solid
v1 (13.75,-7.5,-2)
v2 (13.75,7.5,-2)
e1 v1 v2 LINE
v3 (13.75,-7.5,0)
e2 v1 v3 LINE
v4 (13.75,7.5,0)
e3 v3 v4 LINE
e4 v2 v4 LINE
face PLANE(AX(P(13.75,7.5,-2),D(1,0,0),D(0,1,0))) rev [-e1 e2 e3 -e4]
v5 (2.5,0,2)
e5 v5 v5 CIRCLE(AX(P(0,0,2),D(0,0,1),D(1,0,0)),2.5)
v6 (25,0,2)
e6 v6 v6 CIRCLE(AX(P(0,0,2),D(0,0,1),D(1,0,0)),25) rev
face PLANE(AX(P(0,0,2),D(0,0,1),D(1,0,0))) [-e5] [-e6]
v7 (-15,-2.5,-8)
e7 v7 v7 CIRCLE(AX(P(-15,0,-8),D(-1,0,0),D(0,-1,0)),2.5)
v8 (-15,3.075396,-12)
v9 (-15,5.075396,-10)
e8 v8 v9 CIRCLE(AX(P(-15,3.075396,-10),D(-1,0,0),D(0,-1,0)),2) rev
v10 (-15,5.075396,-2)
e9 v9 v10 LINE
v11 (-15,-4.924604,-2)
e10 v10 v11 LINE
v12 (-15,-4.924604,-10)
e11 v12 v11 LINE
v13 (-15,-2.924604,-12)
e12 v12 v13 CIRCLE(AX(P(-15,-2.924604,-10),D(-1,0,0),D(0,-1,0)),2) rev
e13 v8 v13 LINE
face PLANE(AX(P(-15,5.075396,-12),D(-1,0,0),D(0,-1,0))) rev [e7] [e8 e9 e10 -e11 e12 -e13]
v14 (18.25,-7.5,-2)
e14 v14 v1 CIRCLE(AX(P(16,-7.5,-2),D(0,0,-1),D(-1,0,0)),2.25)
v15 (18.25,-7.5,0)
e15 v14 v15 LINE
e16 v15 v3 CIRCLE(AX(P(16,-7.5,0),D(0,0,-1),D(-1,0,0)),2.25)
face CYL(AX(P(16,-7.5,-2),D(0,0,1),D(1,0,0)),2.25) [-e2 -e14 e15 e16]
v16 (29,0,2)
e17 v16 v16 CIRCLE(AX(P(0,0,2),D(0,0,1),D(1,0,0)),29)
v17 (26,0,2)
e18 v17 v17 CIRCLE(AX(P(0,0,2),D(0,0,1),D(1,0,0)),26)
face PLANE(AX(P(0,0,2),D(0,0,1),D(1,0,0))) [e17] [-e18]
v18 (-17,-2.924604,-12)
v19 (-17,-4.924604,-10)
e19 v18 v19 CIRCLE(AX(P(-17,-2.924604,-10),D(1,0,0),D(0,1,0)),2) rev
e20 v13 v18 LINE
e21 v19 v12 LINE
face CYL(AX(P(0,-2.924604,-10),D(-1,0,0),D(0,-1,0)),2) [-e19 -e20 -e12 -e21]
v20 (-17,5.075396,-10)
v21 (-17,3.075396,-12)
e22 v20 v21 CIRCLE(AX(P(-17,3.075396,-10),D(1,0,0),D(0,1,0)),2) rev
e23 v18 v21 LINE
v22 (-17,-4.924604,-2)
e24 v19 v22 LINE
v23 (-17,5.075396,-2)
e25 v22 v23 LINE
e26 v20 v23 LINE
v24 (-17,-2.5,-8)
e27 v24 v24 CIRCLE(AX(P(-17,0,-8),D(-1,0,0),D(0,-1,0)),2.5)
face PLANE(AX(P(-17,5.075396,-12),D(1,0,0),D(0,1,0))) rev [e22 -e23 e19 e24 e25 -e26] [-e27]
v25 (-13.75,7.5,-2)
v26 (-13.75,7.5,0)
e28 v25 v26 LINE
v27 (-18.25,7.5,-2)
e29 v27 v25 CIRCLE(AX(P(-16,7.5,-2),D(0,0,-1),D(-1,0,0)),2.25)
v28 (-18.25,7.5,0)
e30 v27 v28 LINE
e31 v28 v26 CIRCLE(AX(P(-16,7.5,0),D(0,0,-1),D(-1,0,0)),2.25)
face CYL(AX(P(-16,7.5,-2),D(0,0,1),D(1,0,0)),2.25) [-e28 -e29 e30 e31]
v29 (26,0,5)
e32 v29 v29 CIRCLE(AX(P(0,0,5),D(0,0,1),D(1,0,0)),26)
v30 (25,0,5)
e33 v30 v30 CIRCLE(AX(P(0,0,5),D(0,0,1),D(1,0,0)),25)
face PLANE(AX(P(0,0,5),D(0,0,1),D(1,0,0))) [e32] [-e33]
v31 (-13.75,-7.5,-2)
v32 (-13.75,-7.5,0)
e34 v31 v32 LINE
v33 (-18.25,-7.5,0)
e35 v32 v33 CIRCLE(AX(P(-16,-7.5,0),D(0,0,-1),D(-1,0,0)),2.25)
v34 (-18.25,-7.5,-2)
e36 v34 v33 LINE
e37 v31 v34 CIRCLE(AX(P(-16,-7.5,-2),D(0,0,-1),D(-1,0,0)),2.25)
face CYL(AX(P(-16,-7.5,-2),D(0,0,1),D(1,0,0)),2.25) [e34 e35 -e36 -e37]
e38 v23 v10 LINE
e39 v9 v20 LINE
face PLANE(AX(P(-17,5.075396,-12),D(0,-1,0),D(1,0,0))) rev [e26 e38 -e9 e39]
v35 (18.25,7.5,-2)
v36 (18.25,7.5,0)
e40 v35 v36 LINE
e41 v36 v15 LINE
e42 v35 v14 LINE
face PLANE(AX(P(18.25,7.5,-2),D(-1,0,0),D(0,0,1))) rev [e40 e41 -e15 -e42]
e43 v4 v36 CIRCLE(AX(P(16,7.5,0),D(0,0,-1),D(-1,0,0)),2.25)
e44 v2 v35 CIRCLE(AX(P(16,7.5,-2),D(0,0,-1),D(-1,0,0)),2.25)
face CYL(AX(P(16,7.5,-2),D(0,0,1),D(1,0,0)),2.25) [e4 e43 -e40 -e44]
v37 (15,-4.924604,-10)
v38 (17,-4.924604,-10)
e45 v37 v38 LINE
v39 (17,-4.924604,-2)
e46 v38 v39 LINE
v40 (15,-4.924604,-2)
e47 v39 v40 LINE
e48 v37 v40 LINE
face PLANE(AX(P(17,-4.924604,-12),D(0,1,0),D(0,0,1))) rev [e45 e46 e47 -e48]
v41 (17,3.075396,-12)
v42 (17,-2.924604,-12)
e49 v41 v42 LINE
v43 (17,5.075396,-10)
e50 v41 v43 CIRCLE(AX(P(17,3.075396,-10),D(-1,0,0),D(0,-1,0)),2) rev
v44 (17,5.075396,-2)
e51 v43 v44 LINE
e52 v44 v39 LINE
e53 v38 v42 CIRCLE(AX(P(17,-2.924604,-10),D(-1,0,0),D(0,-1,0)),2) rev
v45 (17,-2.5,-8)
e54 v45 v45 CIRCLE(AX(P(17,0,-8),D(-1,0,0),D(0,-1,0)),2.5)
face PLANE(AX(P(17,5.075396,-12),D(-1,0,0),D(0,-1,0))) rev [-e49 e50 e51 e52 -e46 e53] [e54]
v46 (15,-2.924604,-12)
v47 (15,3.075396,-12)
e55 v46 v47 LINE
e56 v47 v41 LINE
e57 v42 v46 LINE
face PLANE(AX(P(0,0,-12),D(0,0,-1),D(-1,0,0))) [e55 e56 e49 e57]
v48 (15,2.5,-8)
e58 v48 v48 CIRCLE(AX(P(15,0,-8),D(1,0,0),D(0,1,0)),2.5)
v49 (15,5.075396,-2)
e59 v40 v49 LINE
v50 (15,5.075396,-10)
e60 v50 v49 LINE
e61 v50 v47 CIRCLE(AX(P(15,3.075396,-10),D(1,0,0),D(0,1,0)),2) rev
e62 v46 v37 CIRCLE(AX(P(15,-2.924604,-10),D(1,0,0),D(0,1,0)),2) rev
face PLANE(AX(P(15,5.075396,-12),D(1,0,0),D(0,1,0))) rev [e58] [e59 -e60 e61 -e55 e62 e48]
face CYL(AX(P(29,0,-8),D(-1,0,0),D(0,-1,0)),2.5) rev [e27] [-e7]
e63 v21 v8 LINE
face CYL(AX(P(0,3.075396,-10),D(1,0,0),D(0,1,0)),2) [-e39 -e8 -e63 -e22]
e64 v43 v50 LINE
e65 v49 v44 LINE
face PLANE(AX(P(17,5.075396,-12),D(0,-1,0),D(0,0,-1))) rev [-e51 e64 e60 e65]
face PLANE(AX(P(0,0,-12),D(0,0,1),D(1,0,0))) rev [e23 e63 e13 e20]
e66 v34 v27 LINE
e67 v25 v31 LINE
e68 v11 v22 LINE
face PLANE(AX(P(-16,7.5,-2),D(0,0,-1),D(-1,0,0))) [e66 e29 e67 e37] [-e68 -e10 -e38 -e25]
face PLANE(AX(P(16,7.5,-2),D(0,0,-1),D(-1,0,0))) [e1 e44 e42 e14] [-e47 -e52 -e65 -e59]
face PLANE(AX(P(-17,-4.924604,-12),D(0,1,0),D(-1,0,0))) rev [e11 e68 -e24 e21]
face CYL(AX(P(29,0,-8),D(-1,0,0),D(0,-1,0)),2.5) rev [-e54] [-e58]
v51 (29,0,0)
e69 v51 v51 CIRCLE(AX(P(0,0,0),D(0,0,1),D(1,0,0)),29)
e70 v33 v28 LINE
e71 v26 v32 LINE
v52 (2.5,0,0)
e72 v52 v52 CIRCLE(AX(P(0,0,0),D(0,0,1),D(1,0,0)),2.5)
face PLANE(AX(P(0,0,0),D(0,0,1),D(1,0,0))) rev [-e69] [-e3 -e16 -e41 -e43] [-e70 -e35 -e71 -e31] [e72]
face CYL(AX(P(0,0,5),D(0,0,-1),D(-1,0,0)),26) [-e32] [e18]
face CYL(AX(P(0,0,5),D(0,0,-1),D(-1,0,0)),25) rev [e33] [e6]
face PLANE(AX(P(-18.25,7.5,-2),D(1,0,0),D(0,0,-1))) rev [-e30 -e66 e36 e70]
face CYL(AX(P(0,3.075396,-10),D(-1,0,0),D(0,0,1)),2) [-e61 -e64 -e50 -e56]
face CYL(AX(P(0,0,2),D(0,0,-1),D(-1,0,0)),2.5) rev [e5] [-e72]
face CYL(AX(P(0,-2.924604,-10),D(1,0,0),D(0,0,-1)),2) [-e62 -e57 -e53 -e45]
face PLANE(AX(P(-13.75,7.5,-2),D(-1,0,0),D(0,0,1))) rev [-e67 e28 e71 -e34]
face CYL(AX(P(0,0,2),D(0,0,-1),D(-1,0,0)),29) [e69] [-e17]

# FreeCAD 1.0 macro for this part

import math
import FreeCAD as App
import Part
import Sketcher

V = App.Vector


def edges_at(feature, points):
    """Names of the edges that pass closest to the given points."""
    edges = feature.Shape.Edges
    near = lambda p: min(range(len(edges)), key=lambda i: edges[i].distToShape(Part.Vertex(*p))[0])
    return sorted({f"Edge{near(p) + 1}" for p in points})


def add_polygon(sketch, points):
    """Adds a closed chain of lines whose ends are joined by coincident constraints."""
    first, n = sketch.GeometryCount, len(points)
    for a, b in zip(points, points[1:] + points[:1]):
        sketch.addGeometry(Part.LineSegment(App.Vector(*a, 0), App.Vector(*b, 0)), False)
    for i in range(n):
        sketch.addConstraint(Sketcher.Constraint("Coincident", first + i, 2, first + (i + 1) % n, 1))

doc = App.newDocument("Part")
body = doc.addObject("PartDesign::Body", "Body")

# Sketch on XY plane
sketch1 = body.newObject("Sketcher::SketchObject", "Sketch")
sketch1.AttachmentSupport = (doc.getObject("XY_Plane"), [""])
sketch1.MapMode = "FlatFace"
sketch1.addGeometry([
    Part.Circle(V(0, 0, 0), V(0, 0, 1), 29),
    Part.Circle(V(0, 0, 0), V(0, 0, 1), 2.5),
], False)
sketch1.addConstraint([
    Sketcher.Constraint("Coincident", 0, 3, -1, 1),
    Sketcher.Constraint("Coincident", 1, 3, -1, 1),
    Sketcher.Constraint("Diameter", 0, 58.0),
    Sketcher.Constraint("Diameter", 1, 5.0),
])
pad1 = body.newObject("PartDesign::Pad", "Pad")
pad1.Profile = sketch1
pad1.Length = 2

# Sketch on XY plane
sketch2 = body.newObject("Sketcher::SketchObject", "Sketch001")
sketch2.AttachmentSupport = (doc.getObject("XY_Plane"), [""])
sketch2.MapMode = "FlatFace"
sketch2.AttachmentOffset = App.Placement(V(0, 0, 2), App.Rotation())
sketch2.addGeometry([
    Part.Circle(V(0, 0, 0), V(0, 0, 1), 26),
    Part.Circle(V(0, 0, 0), V(0, 0, 1), 25),
], False)
sketch2.addConstraint([
    Sketcher.Constraint("Coincident", 0, 3, -1, 1),
    Sketcher.Constraint("Coincident", 1, 3, -1, 1),
    Sketcher.Constraint("Diameter", 0, 52.0),
    Sketcher.Constraint("Diameter", 1, 50.0),
])
pad2 = body.newObject("PartDesign::Pad", "Pad001")
pad2.Profile = sketch2
pad2.Length = 3

# Sketch on XY plane
sketch3 = body.newObject("Sketcher::SketchObject", "Sketch002")
sketch3.AttachmentSupport = (doc.getObject("XY_Plane"), [""])
sketch3.MapMode = "FlatFace"
sketch3.addGeometry([
    Part.LineSegment(V(13.8, -7.5, 0), V(13.8, 7.5, 0)),  # 0
    Part.ArcOfCircle(Part.Circle(V(16, 7.5, 0), V(0, 0, 1), 2.2), math.radians(0), math.radians(180)),  # 1
    Part.LineSegment(V(18.2, 7.5, 0), V(18.2, -7.5, 0)),  # 2
    Part.ArcOfCircle(Part.Circle(V(16, -7.5, 0), V(0, 0, 1), 2.2), math.radians(180), math.radians(360)),  # 3
    Part.LineSegment(V(-18.2, -7.5, 0), V(-18.2, 7.5, 0)),  # 4
    Part.ArcOfCircle(Part.Circle(V(-16, 7.5, 0), V(0, 0, 1), 2.2), math.radians(0), math.radians(180)),  # 5
    Part.LineSegment(V(-13.8, 7.5, 0), V(-13.8, -7.5, 0)),  # 6
    Part.ArcOfCircle(Part.Circle(V(-16, -7.5, 0), V(0, 0, 1), 2.2), math.radians(180), math.radians(360)),  # 7
], False)
sketch3.addConstraint([
    Sketcher.Constraint("Tangent", 0, 2, 1, 2),
    Sketcher.Constraint("Tangent", 1, 1, 2, 1),
    Sketcher.Constraint("Tangent", 2, 2, 3, 2),
    Sketcher.Constraint("Tangent", 3, 1, 0, 1),
    Sketcher.Constraint("Tangent", 4, 2, 5, 2),
    Sketcher.Constraint("Tangent", 5, 1, 6, 1),
    Sketcher.Constraint("Tangent", 6, 2, 7, 2),
    Sketcher.Constraint("Tangent", 7, 1, 4, 1),
    Sketcher.Constraint("Vertical", 0),
    Sketcher.Constraint("Vertical", 2),
    Sketcher.Constraint("Vertical", 4),
    Sketcher.Constraint("Vertical", 6),
    Sketcher.Constraint("Equal", 3, 5),
    Sketcher.Constraint("Symmetric", 3, 3, 5, 3, -1, 1),
    Sketcher.Constraint("Horizontal", 1, 3, 5, 3),
    Sketcher.Constraint("Horizontal", 3, 3, 7, 3),
    Sketcher.Constraint("DistanceY", 0, 1, 0, 2, 15.0),
    Sketcher.Constraint("Radius", 1, 2.25),
    Sketcher.Constraint("DistanceX", -1, 1, 1, 3, 16.0),
])
pad3 = body.newObject("PartDesign::Pad", "Pad002")
pad3.Profile = sketch3
pad3.Length = 2
pad3.Reversed = True

# Sketch on XY plane
sketch4 = body.newObject("Sketcher::SketchObject", "Sketch003")
sketch4.AttachmentSupport = (doc.getObject("XY_Plane"), [""])
sketch4.MapMode = "FlatFace"
sketch4.AttachmentOffset = App.Placement(V(0, 0, -2), App.Rotation())
add_polygon(sketch4, [(17, 5.1), (17, -4.9), (15, -4.9), (15, 5.1)])  # lines 0-3
add_polygon(sketch4, [(-15, 5.1), (-15, -4.9), (-17, -4.9), (-17, 5.1)])  # lines 4-7
sketch4.addConstraint([
    Sketcher.Constraint("Vertical", 0),
    Sketcher.Constraint("Horizontal", 1),
    Sketcher.Constraint("Vertical", 2),
    Sketcher.Constraint("Horizontal", 3),
    Sketcher.Constraint("Vertical", 4),
    Sketcher.Constraint("Horizontal", 5),
    Sketcher.Constraint("Vertical", 6),
    Sketcher.Constraint("Horizontal", 7),
    Sketcher.Constraint("Symmetric", 1, 2, 4, 2, -2),
    Sketcher.Constraint("Symmetric", 3, 2, 6, 2, -2),
    Sketcher.Constraint("DistanceX", 1, 2, 1, 1, 2.0),
    Sketcher.Constraint("DistanceY", 0, 2, 0, 1, 10.0),
    Sketcher.Constraint("DistanceX", -1, 1, 0, 2, 17.0),
    Sketcher.Constraint("DistanceY", 0, 2, -1, 1, 4.924604),
])
pad4 = body.newObject("PartDesign::Pad", "Pad003")
pad4.Profile = sketch4
pad4.Length = 10
pad4.Reversed = True
doc.recompute()

fillet = body.newObject("PartDesign::Fillet", "Fillet")
fillet.Base = (pad4, edges_at(pad4, [
    (16, 5.075, -12),
    (16, -4.925, -12),
    (-16, 5.075, -12),
    (-16, -4.925, -12),
]))
fillet.Radius = 2

# Sketch on YZ plane
sketch5 = body.newObject("Sketcher::SketchObject", "Sketch004")
sketch5.AttachmentSupport = (doc.getObject("YZ_Plane"), [""])
sketch5.MapMode = "FlatFace"
sketch5.AttachmentOffset = App.Placement(V(0, 0, -17), App.Rotation())
sketch5.addGeometry(Part.Circle(V(0, -8, 0), V(0, 0, 1), 2.5), False)
sketch5.addConstraint([
    Sketcher.Constraint("PointOnObject", 0, 3, -2),
    Sketcher.Constraint("Diameter", 0, 5.0),
    Sketcher.Constraint("DistanceY", 0, 3, -1, 1, 8.0),
])
pocket1 = body.newObject("PartDesign::Pocket", "Pocket")
pocket1.Profile = sketch5
pocket1.Type = "ThroughAll"
pocket1.Reversed = True

doc.recompute()
